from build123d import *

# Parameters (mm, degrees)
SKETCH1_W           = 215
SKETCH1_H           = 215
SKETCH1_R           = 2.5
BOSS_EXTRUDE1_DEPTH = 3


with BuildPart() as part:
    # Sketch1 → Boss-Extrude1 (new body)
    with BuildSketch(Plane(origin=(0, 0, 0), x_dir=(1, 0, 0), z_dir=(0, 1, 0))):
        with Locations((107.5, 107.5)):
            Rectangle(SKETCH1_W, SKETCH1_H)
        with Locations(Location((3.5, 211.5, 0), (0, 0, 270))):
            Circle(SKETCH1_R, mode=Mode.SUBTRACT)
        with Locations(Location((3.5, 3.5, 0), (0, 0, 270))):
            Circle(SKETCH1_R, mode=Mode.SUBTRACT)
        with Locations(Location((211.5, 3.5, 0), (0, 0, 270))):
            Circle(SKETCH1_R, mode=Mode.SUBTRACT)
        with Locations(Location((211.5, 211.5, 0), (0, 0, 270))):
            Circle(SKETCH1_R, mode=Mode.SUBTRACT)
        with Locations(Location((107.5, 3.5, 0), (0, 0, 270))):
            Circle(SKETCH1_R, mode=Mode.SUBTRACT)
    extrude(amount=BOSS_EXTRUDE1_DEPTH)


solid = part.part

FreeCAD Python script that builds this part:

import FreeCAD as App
import Part
import Sketcher
from FreeCAD import Vector

doc = App.newDocument("Part")
body = doc.addObject("PartDesign::Body", "Body")

# Sketch on XZ plane
sketch1 = body.newObject("Sketcher::SketchObject", "Sketch")
sketch1.AttachmentSupport = (doc.getObject("XZ_Plane"), [""])
sketch1.MapMode = "FlatFace"
sketch1.addGeometry(Part.LineSegment(Vector(0, -215, 0), Vector(0, 0, 0)), False)
sketch1.addGeometry(Part.LineSegment(Vector(0, 0, 0), Vector(215, 0, 0)), False)
sketch1.addGeometry(Part.LineSegment(Vector(215, 0, 0), Vector(215, -215, 0)), False)
sketch1.addGeometry(Part.LineSegment(Vector(215, -215, 0), Vector(0, -215, 0)), False)
sketch1.addGeometry(Part.Circle(Vector(3.5, -3.5, 0), Vector(0, 0, 1), 2.5), False)
sketch1.addGeometry(Part.Circle(Vector(107.5, -3.5, 0), Vector(0, 0, 1), 2.5), False)
sketch1.addGeometry(Part.Circle(Vector(211.5, -3.5, 0), Vector(0, 0, 1), 2.5), False)
sketch1.addGeometry(Part.Circle(Vector(3.5, -211.5, 0), Vector(0, 0, 1), 2.5), False)
sketch1.addGeometry(Part.Circle(Vector(211.5, -211.5, 0), Vector(0, 0, 1), 2.5), False)
sketch1.addConstraint(Sketcher.Constraint("Coincident", 0, 2, 1, 1))
sketch1.addConstraint(Sketcher.Constraint("Coincident", 1, 2, 2, 1))
sketch1.addConstraint(Sketcher.Constraint("Coincident", 2, 2, 3, 1))
sketch1.addConstraint(Sketcher.Constraint("Coincident", 3, 2, 0, 1))
sketch1.addConstraint(Sketcher.Constraint("Vertical", 0))
sketch1.addConstraint(Sketcher.Constraint("Horizontal", 1))
sketch1.addConstraint(Sketcher.Constraint("Vertical", 2))
sketch1.addConstraint(Sketcher.Constraint("Horizontal", 3))
sketch1.addConstraint(Sketcher.Constraint("Coincident", 0, 2, -1, 1))
sketch1.addConstraint(Sketcher.Constraint("Equal", 4, 5))
sketch1.addConstraint(Sketcher.Constraint("Equal", 5, 6))
sketch1.addConstraint(Sketcher.Constraint("Equal", 6, 7))
sketch1.addConstraint(Sketcher.Constraint("Equal", 7, 8))
sketch1.addConstraint(Sketcher.Constraint("Horizontal", 4, 3, 5, 3))
sketch1.addConstraint(Sketcher.Constraint("Horizontal", 5, 3, 6, 3))
sketch1.addConstraint(Sketcher.Constraint("Horizontal", 7, 3, 8, 3))
sketch1.addConstraint(Sketcher.Constraint("Vertical", 4, 3, 7, 3))
sketch1.addConstraint(Sketcher.Constraint("Vertical", 6, 3, 8, 3))
sketch1.addConstraint(Sketcher.Constraint("Equal", 3, 0))
sketch1.addConstraint(Sketcher.Constraint("Diameter", 4, 5.0))
sketch1.addConstraint(Sketcher.Constraint("DistanceX", 1, 1, 1, 2, 215.0))
sketch1.addConstraint(Sketcher.Constraint("DistanceX", 4, 3, 5, 3, 104.0))
sketch1.addConstraint(Sketcher.Constraint("DistanceX", 5, 3, 6, 3, 104.0))
sketch1.addConstraint(Sketcher.Constraint("DistanceY", 7, 3, 4, 3, 208.0))
sketch1.addConstraint(Sketcher.Constraint("DistanceX", -1, 1, 4, 3, 3.5))
sketch1.addConstraint(Sketcher.Constraint("DistanceY", 4, 3, -1, 1, 3.5))
pad1 = body.newObject("PartDesign::Pad", "Pad")
pad1.Profile = sketch1
pad1.Length = 3
pad1.Reversed = True

doc.recompute()
